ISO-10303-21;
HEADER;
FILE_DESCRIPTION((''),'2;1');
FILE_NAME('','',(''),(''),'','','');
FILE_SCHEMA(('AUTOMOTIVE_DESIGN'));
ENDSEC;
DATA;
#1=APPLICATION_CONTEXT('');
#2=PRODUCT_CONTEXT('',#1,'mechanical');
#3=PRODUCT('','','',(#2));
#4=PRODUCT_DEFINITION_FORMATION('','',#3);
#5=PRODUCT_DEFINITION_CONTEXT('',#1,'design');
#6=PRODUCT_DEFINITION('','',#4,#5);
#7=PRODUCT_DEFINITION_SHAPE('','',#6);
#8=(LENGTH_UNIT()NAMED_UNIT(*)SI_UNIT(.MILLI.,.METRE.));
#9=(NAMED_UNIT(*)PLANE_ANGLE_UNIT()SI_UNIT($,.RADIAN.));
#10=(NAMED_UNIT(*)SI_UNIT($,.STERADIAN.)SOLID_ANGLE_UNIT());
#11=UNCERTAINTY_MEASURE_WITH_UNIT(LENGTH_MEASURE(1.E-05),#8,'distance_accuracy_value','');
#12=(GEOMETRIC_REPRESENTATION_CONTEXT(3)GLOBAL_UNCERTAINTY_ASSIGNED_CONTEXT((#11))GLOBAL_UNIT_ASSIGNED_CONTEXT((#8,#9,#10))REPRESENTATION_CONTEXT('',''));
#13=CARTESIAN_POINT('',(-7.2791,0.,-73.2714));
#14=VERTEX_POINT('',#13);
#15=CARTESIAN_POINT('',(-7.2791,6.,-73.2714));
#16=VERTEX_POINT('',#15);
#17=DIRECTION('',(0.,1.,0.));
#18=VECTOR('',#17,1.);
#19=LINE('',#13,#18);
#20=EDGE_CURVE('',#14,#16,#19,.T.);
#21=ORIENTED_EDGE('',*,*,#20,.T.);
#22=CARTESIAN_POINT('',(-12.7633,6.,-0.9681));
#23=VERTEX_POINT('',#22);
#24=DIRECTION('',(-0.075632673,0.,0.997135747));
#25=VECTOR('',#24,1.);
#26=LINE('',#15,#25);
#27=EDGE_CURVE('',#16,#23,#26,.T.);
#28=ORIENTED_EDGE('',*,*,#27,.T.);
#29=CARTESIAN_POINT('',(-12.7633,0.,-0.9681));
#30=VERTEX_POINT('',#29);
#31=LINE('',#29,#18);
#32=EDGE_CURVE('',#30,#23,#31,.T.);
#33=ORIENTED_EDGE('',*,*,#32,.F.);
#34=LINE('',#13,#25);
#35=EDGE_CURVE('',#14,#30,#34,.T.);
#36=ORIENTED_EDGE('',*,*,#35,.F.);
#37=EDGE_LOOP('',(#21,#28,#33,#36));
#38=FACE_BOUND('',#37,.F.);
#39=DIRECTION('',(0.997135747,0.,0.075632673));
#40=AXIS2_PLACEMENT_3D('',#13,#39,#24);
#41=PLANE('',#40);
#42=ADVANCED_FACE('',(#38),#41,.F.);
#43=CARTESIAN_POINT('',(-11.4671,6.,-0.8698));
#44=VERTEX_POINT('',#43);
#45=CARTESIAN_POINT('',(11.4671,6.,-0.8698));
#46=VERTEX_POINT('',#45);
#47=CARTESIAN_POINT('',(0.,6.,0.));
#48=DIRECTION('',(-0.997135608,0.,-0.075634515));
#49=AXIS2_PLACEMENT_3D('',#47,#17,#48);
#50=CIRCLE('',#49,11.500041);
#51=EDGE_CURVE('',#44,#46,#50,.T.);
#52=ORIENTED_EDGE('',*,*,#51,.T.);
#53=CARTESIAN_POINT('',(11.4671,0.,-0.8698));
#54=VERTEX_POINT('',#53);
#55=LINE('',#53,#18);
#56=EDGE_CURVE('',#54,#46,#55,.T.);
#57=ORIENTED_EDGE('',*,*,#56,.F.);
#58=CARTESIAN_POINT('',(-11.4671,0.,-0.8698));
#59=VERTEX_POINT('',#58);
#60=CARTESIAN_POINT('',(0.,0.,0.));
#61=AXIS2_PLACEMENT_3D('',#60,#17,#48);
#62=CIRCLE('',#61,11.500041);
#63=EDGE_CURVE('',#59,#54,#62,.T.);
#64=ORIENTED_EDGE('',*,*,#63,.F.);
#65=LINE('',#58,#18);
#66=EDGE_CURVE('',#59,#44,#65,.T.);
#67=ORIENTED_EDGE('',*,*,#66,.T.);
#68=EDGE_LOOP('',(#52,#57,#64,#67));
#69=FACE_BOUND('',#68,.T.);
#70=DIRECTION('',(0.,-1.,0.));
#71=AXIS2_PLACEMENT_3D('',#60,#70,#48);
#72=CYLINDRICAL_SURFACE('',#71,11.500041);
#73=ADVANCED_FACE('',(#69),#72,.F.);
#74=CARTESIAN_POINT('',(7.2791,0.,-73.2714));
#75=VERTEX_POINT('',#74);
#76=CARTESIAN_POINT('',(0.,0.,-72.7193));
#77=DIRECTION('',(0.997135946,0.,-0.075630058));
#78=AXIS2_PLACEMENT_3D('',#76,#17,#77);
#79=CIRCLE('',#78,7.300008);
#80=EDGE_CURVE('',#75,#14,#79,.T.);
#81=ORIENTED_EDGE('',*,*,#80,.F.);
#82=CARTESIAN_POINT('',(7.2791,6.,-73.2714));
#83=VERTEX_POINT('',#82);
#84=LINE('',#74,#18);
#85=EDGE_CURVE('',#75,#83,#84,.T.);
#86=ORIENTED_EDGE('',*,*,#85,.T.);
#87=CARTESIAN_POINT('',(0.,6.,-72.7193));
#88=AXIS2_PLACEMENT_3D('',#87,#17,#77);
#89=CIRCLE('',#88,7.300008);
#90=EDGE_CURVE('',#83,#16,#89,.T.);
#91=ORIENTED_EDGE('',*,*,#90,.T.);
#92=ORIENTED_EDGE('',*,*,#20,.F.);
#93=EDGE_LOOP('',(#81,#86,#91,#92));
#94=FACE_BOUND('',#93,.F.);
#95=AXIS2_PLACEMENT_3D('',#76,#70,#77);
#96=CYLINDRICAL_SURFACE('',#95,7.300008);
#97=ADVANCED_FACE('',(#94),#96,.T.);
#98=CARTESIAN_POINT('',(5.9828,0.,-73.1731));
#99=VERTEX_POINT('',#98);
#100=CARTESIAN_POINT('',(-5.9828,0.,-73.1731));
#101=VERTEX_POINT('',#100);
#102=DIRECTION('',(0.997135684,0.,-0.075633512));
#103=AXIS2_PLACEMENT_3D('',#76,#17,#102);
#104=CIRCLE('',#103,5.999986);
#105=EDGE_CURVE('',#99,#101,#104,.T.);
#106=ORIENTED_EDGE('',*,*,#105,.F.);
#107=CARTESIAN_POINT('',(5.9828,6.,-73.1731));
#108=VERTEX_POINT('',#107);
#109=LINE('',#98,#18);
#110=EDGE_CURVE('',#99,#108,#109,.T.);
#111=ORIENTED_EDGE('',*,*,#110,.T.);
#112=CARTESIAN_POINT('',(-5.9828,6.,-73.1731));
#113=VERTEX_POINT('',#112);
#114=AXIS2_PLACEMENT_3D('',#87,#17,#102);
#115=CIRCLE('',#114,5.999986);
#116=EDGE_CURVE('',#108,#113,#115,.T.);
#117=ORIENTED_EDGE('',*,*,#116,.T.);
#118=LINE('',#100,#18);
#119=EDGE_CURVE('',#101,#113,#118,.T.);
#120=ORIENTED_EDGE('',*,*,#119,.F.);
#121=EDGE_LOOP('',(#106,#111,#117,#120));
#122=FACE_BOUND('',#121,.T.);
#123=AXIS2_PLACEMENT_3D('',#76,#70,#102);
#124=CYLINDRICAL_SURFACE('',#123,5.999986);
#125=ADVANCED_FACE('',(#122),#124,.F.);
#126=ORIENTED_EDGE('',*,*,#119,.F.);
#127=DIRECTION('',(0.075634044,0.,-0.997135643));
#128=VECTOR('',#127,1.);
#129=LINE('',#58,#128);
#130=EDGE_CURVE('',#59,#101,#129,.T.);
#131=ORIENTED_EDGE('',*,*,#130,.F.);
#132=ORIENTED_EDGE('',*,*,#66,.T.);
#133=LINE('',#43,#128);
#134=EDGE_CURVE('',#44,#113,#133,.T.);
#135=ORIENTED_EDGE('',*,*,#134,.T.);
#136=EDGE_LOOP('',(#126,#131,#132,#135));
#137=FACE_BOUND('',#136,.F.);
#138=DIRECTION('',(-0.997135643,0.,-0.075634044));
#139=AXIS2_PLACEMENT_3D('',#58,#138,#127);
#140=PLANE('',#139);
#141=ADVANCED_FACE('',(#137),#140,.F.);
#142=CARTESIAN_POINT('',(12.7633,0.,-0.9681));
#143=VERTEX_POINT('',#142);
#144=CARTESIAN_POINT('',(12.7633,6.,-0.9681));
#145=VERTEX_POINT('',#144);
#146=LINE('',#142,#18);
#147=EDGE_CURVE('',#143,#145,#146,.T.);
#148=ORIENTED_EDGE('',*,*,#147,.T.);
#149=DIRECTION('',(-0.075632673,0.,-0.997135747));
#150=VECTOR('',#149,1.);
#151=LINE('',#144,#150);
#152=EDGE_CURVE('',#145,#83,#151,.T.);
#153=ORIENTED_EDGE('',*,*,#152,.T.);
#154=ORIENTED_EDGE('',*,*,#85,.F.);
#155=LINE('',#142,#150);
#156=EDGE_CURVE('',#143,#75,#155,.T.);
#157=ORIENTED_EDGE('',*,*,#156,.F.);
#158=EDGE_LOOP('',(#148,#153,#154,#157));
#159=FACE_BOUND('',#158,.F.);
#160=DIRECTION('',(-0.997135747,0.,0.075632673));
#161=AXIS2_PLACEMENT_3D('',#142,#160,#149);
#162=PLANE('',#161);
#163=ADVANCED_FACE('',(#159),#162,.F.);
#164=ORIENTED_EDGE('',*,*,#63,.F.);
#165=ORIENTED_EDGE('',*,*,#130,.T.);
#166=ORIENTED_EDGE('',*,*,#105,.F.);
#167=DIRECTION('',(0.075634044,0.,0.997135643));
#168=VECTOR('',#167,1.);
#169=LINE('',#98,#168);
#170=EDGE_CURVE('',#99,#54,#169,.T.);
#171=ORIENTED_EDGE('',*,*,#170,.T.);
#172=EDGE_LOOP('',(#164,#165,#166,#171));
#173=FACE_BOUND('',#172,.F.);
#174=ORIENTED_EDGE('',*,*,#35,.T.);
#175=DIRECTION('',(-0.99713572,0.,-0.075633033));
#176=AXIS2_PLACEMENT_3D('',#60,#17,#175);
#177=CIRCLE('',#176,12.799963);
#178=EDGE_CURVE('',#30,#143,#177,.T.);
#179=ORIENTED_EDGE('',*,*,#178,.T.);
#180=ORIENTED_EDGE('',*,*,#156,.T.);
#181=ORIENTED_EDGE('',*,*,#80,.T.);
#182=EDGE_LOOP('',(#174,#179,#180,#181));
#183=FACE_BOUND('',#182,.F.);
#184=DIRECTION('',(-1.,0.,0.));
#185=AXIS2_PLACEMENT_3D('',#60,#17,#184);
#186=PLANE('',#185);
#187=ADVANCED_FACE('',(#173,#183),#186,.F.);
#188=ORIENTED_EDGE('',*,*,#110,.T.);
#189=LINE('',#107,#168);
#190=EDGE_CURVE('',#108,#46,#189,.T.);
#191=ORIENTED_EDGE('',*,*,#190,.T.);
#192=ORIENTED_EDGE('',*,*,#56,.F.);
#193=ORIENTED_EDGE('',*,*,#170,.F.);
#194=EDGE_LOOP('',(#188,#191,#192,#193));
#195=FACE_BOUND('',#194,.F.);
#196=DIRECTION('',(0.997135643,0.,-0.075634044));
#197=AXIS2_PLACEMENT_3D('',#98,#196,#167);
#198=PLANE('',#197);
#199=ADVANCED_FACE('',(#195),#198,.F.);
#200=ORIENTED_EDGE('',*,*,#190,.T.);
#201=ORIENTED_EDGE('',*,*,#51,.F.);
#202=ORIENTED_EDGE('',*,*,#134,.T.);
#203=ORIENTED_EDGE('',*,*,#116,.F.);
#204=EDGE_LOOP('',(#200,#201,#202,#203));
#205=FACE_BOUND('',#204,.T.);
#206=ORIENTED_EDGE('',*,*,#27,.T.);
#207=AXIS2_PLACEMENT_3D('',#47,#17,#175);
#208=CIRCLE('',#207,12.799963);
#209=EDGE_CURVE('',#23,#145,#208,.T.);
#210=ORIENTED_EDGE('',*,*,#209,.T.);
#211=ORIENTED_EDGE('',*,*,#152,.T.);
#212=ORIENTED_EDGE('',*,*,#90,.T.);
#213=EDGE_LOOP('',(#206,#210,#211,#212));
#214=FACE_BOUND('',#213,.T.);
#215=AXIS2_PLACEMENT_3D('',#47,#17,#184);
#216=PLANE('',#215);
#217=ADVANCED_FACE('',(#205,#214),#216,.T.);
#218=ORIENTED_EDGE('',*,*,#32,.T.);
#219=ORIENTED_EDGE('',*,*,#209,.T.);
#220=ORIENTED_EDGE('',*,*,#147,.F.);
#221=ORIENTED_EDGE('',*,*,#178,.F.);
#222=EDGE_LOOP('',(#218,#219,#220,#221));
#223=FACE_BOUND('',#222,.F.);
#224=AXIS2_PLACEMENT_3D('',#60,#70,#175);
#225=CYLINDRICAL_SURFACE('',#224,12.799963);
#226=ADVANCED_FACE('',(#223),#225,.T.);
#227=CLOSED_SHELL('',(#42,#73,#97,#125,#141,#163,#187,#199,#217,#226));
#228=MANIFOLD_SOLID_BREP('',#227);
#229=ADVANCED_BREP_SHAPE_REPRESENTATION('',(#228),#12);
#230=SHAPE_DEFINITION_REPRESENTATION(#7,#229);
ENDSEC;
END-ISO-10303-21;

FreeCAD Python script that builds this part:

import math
import FreeCAD as App
import Part
import Sketcher

V = App.Vector

doc = App.newDocument("Part")
body = doc.addObject("PartDesign::Body", "Body")

# Sketch on XZ plane
sketch1 = body.newObject("Sketcher::SketchObject", "Sketch")
sketch1.AttachmentSupport = (doc.getObject("XZ_Plane"), [""])
sketch1.MapMode = "FlatFace"
sketch1.addGeometry([
    Part.ArcOfCircle(Part.Circle(V(0, -73, 0), V(0, 0, 1), 7), math.radians(-176), math.radians(-4)),  # 0
    Part.LineSegment(V(-7, -73, 0), V(-13, -1, 0)),  # 1
    Part.ArcOfCircle(Part.Circle(V(0, 0, 0), V(0, 0, 1), 13), math.radians(-4), math.radians(184)),  # 2
    Part.LineSegment(V(13, -1, 0), V(7, -73, 0)),  # 3
    Part.ArcOfCircle(Part.Circle(V(0, 0, 0), V(0, 0, 1), 12), math.radians(-4), math.radians(184)),  # 4
    Part.LineSegment(V(-11, -1, 0), V(-6, -73, 0)),  # 5
    Part.ArcOfCircle(Part.Circle(V(0, -73, 0), V(0, 0, 1), 6), math.radians(-176), math.radians(-4)),  # 6
    Part.LineSegment(V(6, -73, 0), V(11, -1, 0)),  # 7
], False)
sketch1.addConstraint([
    Sketcher.Constraint("Tangent", 0, 1, 1, 1),
    Sketcher.Constraint("Tangent", 1, 2, 2, 2),
    Sketcher.Constraint("Tangent", 2, 1, 3, 1),
    Sketcher.Constraint("Tangent", 3, 2, 0, 2),
    Sketcher.Constraint("Tangent", 4, 2, 5, 1),
    Sketcher.Constraint("Tangent", 5, 2, 6, 1),
    Sketcher.Constraint("Tangent", 6, 2, 7, 1),
    Sketcher.Constraint("Tangent", 7, 2, 4, 1),
    Sketcher.Constraint("Coincident", 2, 3, -1, 1),
    Sketcher.Constraint("Coincident", 4, 3, -1, 1),
    Sketcher.Constraint("Coincident", 6, 3, 0, 3),
    Sketcher.Constraint("PointOnObject", 0, 3, -2),
    Sketcher.Constraint("Parallel", 1, 5),
    Sketcher.Constraint("Radius", 6, 6.0),
    Sketcher.Constraint("Radius", 4, 11.5),
    Sketcher.Constraint("Radius", 0, 7.3),
    Sketcher.Constraint("Distance", 1, 72.511),
])
pad1 = body.newObject("PartDesign::Pad", "Pad")
pad1.Profile = sketch1
pad1.Length = 6
pad1.Reversed = True

doc.recompute()
